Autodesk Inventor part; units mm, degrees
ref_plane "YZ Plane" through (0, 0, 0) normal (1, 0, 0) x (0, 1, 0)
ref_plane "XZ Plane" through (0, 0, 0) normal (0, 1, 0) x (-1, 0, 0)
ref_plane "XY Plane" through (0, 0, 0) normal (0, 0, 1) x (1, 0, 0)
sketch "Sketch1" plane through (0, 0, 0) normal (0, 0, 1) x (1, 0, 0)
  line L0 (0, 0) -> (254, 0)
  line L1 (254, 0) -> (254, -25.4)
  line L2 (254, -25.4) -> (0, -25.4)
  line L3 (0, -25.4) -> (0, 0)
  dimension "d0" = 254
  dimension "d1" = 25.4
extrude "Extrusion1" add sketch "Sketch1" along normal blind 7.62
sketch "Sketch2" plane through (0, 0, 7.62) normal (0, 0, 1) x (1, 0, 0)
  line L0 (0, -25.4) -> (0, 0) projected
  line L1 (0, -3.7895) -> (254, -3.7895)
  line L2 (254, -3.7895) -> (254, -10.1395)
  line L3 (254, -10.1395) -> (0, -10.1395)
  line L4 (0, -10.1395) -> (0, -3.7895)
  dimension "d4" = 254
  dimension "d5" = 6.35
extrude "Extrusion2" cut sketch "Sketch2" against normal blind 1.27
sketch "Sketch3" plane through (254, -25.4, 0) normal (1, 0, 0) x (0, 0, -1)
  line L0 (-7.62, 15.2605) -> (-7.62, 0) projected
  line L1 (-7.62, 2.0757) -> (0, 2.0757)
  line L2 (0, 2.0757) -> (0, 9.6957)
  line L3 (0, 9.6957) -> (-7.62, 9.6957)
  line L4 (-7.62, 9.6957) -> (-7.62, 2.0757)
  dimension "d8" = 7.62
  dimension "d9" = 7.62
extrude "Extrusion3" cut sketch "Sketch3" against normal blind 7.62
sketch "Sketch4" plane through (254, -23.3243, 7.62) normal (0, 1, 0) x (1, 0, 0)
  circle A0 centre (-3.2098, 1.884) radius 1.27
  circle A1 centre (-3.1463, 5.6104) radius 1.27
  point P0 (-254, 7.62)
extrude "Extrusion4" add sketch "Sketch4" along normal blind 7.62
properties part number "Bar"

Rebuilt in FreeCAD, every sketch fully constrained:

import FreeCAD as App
import Part
import Sketcher
from FreeCAD import Vector
Q = App.Units.Quantity

doc = App.newDocument("Part")
body = doc.addObject("PartDesign::Body", "Body")

sketch1 = body.newObject("Sketcher::SketchObject", "Sketch")
sketch1.AttachmentSupport = (doc.getObject("XY_Plane"), [""])
sketch1.MapMode = "FlatFace"
sketch1.addGeometry([
    Part.LineSegment(Vector(254, 0, 0), Vector(0, 0, 0)),
    Part.LineSegment(Vector(0, 0, 0), Vector(0, -25, 0)),
    Part.LineSegment(Vector(0, -25, 0), Vector(254, -25, 0)),
    Part.LineSegment(Vector(254, -25, 0), Vector(254, 0, 0)),
], False)
sketch1.addConstraint([
    Sketcher.Constraint("Coincident", 0, 2, 1, 1),
    Sketcher.Constraint("Coincident", 1, 2, 2, 1),
    Sketcher.Constraint("Coincident", 2, 2, 3, 1),
    Sketcher.Constraint("Coincident", 3, 2, 0, 1),
    Sketcher.Constraint("Horizontal", 0),
    Sketcher.Constraint("Vertical", 1),
    Sketcher.Constraint("Horizontal", 2),
    Sketcher.Constraint("Vertical", 3),
    Sketcher.Constraint("Coincident", 0, 2, -1, 1),
    Sketcher.Constraint("DistanceX", 0, 2, 0, 1, Q("10 in")),
    Sketcher.Constraint("DistanceY", 1, 2, 1, 1, Q("1 in")),
])
pad1 = body.newObject("PartDesign::Pad", "Pad")
pad1.Profile = sketch1
pad1.Length = Q("0.3 in")

sketch2 = body.newObject("Sketcher::SketchObject", "Sketch001")
sketch2.AttachmentSupport = (doc.getObject("XY_Plane"), [""])
sketch2.MapMode = "FlatFace"
sketch2.AttachmentOffset = App.Placement(Vector(0, 0, 0.3 * 25.4), App.Rotation())
sketch2.addGeometry([
    Part.LineSegment(Vector(0, -4, 0), Vector(0, -10, 0)),
    Part.LineSegment(Vector(0, -10, 0), Vector(254, -10, 0)),
    Part.LineSegment(Vector(254, -10, 0), Vector(254, -4, 0)),
    Part.LineSegment(Vector(254, -4, 0), Vector(0, -4, 0)),
], False)
sketch2.addConstraint([
    Sketcher.Constraint("Coincident", 0, 2, 1, 1),
    Sketcher.Constraint("Coincident", 1, 2, 2, 1),
    Sketcher.Constraint("Coincident", 2, 2, 3, 1),
    Sketcher.Constraint("Coincident", 3, 2, 0, 1),
    Sketcher.Constraint("Vertical", 0),
    Sketcher.Constraint("Horizontal", 1),
    Sketcher.Constraint("Vertical", 2),
    Sketcher.Constraint("Horizontal", 3),
    Sketcher.Constraint("PointOnObject", 0, 2, -2),
    Sketcher.Constraint("DistanceX", 1, 1, 1, 2, Q("10 in")),
    Sketcher.Constraint("DistanceY", 0, 2, 0, 1, Q("0.25 in")),
    Sketcher.Constraint("DistanceY", 0, 2, -1, 1, Q("0.3992 in")),
])
pocket1 = body.newObject("PartDesign::Pocket", "Pocket")
pocket1.Profile = sketch2
pocket1.Length = Q("0.05 in")

sketch3 = body.newObject("Sketcher::SketchObject", "Sketch002")
sketch3.AttachmentSupport = (doc.getObject("YZ_Plane"), [""])
sketch3.MapMode = "FlatFace"
sketch3.AttachmentOffset = App.Placement(Vector(0, 0, 10 * 25.4), App.Rotation())
sketch3.addGeometry([
    Part.LineSegment(Vector(-16, 0, 0), Vector(-16, 8, 0)),
    Part.LineSegment(Vector(-16, 8, 0), Vector(-23, 8, 0)),
    Part.LineSegment(Vector(-23, 8, 0), Vector(-23, 0, 0)),
    Part.LineSegment(Vector(-23, 0, 0), Vector(-16, 0, 0)),
], False)
sketch3.addConstraint([
    Sketcher.Constraint("Coincident", 0, 2, 1, 1),
    Sketcher.Constraint("Coincident", 1, 2, 2, 1),
    Sketcher.Constraint("Coincident", 2, 2, 3, 1),
    Sketcher.Constraint("Coincident", 3, 2, 0, 1),
    Sketcher.Constraint("Vertical", 0),
    Sketcher.Constraint("Horizontal", 1),
    Sketcher.Constraint("Vertical", 2),
    Sketcher.Constraint("Horizontal", 3),
    Sketcher.Constraint("PointOnObject", 2, 2, -1),
    Sketcher.Constraint("Equal", 3, 0),
    Sketcher.Constraint("DistanceX", 1, 2, 1, 1, Q("0.3 in")),
    Sketcher.Constraint("DistanceX", 0, 2, -1, 1, Q("15.7043 mm")),
])
pocket2 = body.newObject("PartDesign::Pocket", "Pocket001")
pocket2.Profile = sketch3
pocket2.Length = Q("0.3 in")

sketch4 = body.newObject("Sketcher::SketchObject", "Sketch003")
sketch4.AttachmentSupport = (doc.getObject("XZ_Plane"), [""])
sketch4.MapMode = "FlatFace"
sketch4.AttachmentOffset = App.Placement(Vector(0, 0, 23.3243), App.Rotation())
sketch4.addGeometry([
    Part.Circle(Vector(250.8, 5.7, 0), Vector(0, 0, 1), 1.3),
    Part.Circle(Vector(250.9, 2, 0), Vector(0, 0, 1), 1.3),
], False)
sketch4.addConstraint([
    Sketcher.Constraint("Equal", 0, 1),
    Sketcher.Constraint("Diameter", 0, Q("0.1 in")),
    Sketcher.Constraint("DistanceX", 0, 3, 1, 3, Q("0.0025 in")),
    Sketcher.Constraint("DistanceY", 1, 3, 0, 3, Q("0.1467 in")),
    Sketcher.Constraint("DistanceX", -1, 1, 0, 3, Q("250.7902 mm")),
    Sketcher.Constraint("DistanceY", -1, 1, 0, 3, Q("5.736 mm")),
])
pad2 = body.newObject("PartDesign::Pad", "Pad001")
pad2.Profile = sketch4
pad2.Length = Q("0.3 in")
pad2.Reversed = True

doc.recompute()
